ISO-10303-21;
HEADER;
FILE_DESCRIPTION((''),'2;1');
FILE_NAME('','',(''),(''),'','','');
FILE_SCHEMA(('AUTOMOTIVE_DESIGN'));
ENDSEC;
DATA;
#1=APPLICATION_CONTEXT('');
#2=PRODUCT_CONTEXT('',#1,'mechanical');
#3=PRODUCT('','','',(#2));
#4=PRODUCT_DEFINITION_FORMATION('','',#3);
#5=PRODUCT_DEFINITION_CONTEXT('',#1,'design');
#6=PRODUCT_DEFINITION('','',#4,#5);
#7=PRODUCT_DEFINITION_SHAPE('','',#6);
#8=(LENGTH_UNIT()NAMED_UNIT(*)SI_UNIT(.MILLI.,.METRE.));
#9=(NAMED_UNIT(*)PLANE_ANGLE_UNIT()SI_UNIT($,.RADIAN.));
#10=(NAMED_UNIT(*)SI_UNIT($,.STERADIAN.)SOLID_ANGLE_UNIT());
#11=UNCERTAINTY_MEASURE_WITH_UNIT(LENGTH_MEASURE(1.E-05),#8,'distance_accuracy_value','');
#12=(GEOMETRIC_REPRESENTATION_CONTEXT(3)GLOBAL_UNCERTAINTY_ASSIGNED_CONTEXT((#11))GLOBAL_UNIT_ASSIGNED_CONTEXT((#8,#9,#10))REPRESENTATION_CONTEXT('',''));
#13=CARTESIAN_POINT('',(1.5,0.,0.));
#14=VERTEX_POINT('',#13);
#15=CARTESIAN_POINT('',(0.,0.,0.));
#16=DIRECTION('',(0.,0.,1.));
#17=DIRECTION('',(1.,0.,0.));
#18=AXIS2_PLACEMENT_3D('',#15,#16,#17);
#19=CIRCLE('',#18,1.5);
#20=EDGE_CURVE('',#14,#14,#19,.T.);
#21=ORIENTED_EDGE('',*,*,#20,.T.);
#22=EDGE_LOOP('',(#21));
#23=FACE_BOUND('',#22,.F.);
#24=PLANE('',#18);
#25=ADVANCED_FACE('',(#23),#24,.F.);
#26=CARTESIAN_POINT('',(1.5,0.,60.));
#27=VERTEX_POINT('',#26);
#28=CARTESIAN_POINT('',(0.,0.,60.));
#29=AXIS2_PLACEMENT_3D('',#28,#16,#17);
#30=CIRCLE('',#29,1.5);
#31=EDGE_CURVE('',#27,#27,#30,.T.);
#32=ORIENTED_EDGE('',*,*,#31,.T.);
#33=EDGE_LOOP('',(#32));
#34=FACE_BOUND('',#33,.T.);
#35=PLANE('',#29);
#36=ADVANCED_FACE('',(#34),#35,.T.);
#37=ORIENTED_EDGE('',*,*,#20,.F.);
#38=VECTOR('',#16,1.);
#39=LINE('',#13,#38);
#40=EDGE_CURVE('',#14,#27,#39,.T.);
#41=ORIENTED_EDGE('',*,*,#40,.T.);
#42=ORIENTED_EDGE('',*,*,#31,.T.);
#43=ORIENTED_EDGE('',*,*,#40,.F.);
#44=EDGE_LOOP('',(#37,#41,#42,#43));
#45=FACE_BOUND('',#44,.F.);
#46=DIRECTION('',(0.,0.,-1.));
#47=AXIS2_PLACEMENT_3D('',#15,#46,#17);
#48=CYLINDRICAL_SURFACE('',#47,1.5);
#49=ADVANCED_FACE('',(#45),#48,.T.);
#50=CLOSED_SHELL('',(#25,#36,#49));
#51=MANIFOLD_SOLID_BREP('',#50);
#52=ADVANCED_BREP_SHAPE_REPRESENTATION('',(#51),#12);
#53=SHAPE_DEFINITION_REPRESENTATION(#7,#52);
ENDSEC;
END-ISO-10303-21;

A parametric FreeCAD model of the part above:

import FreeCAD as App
import Part
import Sketcher
from FreeCAD import Vector
Q = App.Units.Quantity

doc = App.newDocument("Part")
body = doc.addObject("PartDesign::Body", "Body")

# Sketch on XY plane
sketch1 = body.newObject("Sketcher::SketchObject", "Sketch")
sketch1.AttachmentSupport = (doc.getObject("XY_Plane"), [""])
sketch1.MapMode = "FlatFace"
sketch1.addGeometry(Part.Circle(Vector(0, 0, 0), Vector(0, 0, 1), 1.5), False)
sketch1.addConstraint(Sketcher.Constraint("Coincident", 0, 3, -1, 1))
sketch1.addConstraint(Sketcher.Constraint("Diameter", 0, Q("3 mm")))
pad1 = body.newObject("PartDesign::Pad", "Pad")
pad1.Profile = sketch1
pad1.Length = 60

doc.recompute()
